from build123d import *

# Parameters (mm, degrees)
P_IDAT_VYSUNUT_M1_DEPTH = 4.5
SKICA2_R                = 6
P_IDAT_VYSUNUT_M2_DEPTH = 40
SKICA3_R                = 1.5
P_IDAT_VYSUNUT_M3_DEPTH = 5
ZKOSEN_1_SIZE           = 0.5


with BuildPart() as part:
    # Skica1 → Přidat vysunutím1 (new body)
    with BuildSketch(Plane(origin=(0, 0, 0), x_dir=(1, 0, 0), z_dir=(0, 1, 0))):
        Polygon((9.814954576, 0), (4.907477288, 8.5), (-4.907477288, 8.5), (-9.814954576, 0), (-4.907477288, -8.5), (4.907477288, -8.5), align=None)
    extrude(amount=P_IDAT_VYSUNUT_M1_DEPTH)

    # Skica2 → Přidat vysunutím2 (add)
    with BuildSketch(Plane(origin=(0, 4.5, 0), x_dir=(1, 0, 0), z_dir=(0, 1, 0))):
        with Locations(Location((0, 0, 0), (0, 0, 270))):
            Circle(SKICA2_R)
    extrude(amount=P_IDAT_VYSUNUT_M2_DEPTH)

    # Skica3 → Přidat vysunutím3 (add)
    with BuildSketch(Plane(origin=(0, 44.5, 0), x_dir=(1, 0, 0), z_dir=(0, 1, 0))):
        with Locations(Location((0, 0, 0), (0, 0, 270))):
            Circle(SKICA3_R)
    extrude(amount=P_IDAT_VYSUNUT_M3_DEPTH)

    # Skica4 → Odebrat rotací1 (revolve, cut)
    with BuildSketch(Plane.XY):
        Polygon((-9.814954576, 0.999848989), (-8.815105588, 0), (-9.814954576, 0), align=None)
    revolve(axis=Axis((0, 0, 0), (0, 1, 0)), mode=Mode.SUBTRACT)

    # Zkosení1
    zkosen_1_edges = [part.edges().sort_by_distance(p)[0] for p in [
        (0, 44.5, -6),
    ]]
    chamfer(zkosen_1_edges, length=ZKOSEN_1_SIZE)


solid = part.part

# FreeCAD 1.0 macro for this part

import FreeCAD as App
import Part
import Sketcher

V = App.Vector
Q = App.Units.Quantity


def edges_at(feature, points):
    """Names of the edges that pass closest to the given points."""
    edges = feature.Shape.Edges
    near = lambda p: min(range(len(edges)), key=lambda i: edges[i].distToShape(Part.Vertex(*p))[0])
    return sorted({f"Edge{near(p) + 1}" for p in points})

doc = App.newDocument("Part")
body = doc.addObject("PartDesign::Body", "Body")

# Sketch on XZ plane
sketch1 = body.newObject("Sketcher::SketchObject", "Sketch")
sketch1.AttachmentSupport = (doc.getObject("XZ_Plane"), [""])
sketch1.MapMode = "FlatFace"
sketch1.addGeometry([
    Part.LineSegment(V(10, 0, 0), V(5, -8, 0)),  # 0
    Part.LineSegment(V(5, -8, 0), V(-5, -8, 0)),  # 1
    Part.LineSegment(V(-5, -8, 0), V(-10, 0, 0)),  # 2
    Part.LineSegment(V(-10, 0, 0), V(-5, 8, 0)),  # 3
    Part.LineSegment(V(-5, 8, 0), V(5, 8, 0)),  # 4
    Part.LineSegment(V(5, 8, 0), V(10, 0, 0)),  # 5
], False)
sketch1.addConstraint([
    Sketcher.Constraint("Coincident", 0, 2, 1, 1),
    Sketcher.Constraint("Coincident", 1, 2, 2, 1),
    Sketcher.Constraint("Coincident", 2, 2, 3, 1),
    Sketcher.Constraint("Coincident", 3, 2, 4, 1),
    Sketcher.Constraint("Coincident", 4, 2, 5, 1),
    Sketcher.Constraint("Coincident", 5, 2, 0, 1),
    Sketcher.Constraint("Horizontal", 1),
    Sketcher.Constraint("Horizontal", 4),
    Sketcher.Constraint("Symmetric", 0, 2, 3, 2, -1, 1),
    Sketcher.Constraint("Symmetric", 2, 2, 5, 2, -1, 1),
    Sketcher.Constraint("PointOnObject", 2, 2, -1),
    Sketcher.Constraint("Parallel", 2, 5),
    Sketcher.Constraint("Vertical", 1, 2, 3, 2),
    Sketcher.Constraint("Angle", 0, Q("-120 deg")),
    Sketcher.Constraint("DistanceY", 1, 2, 3, 2, 17.0),
    Sketcher.Constraint("DistanceX", 1, 2, 1, 1, 9.814955),
])
pad1 = body.newObject("PartDesign::Pad", "Pad")
pad1.Profile = sketch1
pad1.Length = 4.5
pad1.Reversed = True

# Sketch on XZ plane
sketch2 = body.newObject("Sketcher::SketchObject", "Sketch001")
sketch2.AttachmentSupport = (doc.getObject("XZ_Plane"), [""])
sketch2.MapMode = "FlatFace"
sketch2.AttachmentOffset = App.Placement(V(0, 0, -4.5), App.Rotation())
sketch2.addGeometry(Part.Circle(V(0, 0, 0), V(0, 0, 1), 6), False)
sketch2.addConstraint([
    Sketcher.Constraint("Coincident", 0, 3, -1, 1),
    Sketcher.Constraint("Diameter", 0, 12.0),
])
pad2 = body.newObject("PartDesign::Pad", "Pad001")
pad2.Profile = sketch2
pad2.Length = 40
pad2.Reversed = True

# Sketch on XZ plane
sketch3 = body.newObject("Sketcher::SketchObject", "Sketch002")
sketch3.AttachmentSupport = (doc.getObject("XZ_Plane"), [""])
sketch3.MapMode = "FlatFace"
sketch3.AttachmentOffset = App.Placement(V(0, 0, -44.5), App.Rotation())
sketch3.addGeometry(Part.Circle(V(0, 0, 0), V(0, 0, 1), 1.5), False)
sketch3.addConstraint([
    Sketcher.Constraint("Coincident", 0, 3, -1, 1),
    Sketcher.Constraint("Diameter", 0, 3.0),
])
pad3 = body.newObject("PartDesign::Pad", "Pad002")
pad3.Profile = sketch3
pad3.Length = 5
pad3.Reversed = True

# Sketch on XY plane
sketch4 = body.newObject("Sketcher::SketchObject", "Sketch003")
sketch4.AttachmentSupport = (doc.getObject("XY_Plane"), [""])
sketch4.MapMode = "FlatFace"
sketch4.addGeometry([
    Part.LineSegment(V(-8.8, 0, 0), V(-9.8, 1, 0)),
    Part.LineSegment(V(-9.8, 1, 0), V(-9.8, 0, 0)),
    Part.LineSegment(V(-9.8, 0, 0), V(-8.8, 0, 0)),
], False)
sketch4.addConstraint([
    Sketcher.Constraint("Coincident", 0, 2, 1, 1),
    Sketcher.Constraint("Coincident", 1, 2, 2, 1),
    Sketcher.Constraint("Coincident", 2, 2, 0, 1),
    Sketcher.Constraint("Vertical", 1),
    Sketcher.Constraint("Horizontal", 2),
    Sketcher.Constraint("PointOnObject", 1, 2, -1),
    Sketcher.Constraint("Equal", 2, 1),
    Sketcher.Constraint("Distance", 0, 1.414),
    Sketcher.Constraint("DistanceX", 0, 2, -1, 1, 9.814955),
])
groove = body.newObject("PartDesign::Groove", "Groove")
groove.Profile = sketch4
groove.ReferenceAxis = (sketch4, ["V_Axis"])
groove.Angle = 360
doc.recompute()

chamfer = body.newObject("PartDesign::Chamfer", "Chamfer")
chamfer.Base = (groove, edges_at(groove, [(0, 44.5, -6)]))
chamfer.Size = 0.5

doc.recompute()
